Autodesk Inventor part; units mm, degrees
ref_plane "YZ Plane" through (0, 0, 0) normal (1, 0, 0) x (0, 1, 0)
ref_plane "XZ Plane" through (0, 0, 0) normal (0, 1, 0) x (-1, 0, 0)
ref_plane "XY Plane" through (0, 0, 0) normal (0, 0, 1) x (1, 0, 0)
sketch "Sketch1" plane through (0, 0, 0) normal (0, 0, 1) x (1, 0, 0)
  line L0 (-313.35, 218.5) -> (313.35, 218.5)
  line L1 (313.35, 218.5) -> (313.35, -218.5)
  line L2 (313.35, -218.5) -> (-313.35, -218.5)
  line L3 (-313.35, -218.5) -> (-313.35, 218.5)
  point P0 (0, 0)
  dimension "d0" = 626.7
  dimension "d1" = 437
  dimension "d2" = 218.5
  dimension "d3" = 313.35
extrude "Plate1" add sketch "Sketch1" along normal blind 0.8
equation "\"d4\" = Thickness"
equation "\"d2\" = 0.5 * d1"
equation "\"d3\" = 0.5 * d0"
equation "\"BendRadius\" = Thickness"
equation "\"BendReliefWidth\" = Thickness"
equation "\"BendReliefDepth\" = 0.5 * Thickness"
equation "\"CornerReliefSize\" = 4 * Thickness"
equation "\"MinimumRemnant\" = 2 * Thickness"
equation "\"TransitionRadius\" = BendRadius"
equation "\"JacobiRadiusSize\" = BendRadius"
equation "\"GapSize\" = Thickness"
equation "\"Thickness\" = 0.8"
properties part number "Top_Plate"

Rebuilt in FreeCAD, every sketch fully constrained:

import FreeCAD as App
import Part
import Sketcher

V = App.Vector
Q = App.Units.Quantity


def add_polygon(sketch, points):
    """Adds a closed chain of lines whose ends are joined by coincident constraints."""
    first, n = sketch.GeometryCount, len(points)
    for a, b in zip(points, points[1:] + points[:1]):
        sketch.addGeometry(Part.LineSegment(App.Vector(*a, 0), App.Vector(*b, 0)), False)
    for i in range(n):
        sketch.addConstraint(Sketcher.Constraint("Coincident", first + i, 2, first + (i + 1) % n, 1))

doc = App.newDocument("Part")
body = doc.addObject("PartDesign::Body", "Body")

# Sketch on XY plane
sketch1 = body.newObject("Sketcher::SketchObject", "Sketch")
sketch1.AttachmentSupport = (doc.getObject("XY_Plane"), [""])
sketch1.MapMode = "FlatFace"
add_polygon(sketch1, [(313, 218), (-313, 218), (-313, -218), (313, -218)])  # lines 0-3
sketch1.addConstraint([
    Sketcher.Constraint("Horizontal", 0),
    Sketcher.Constraint("Vertical", 1),
    Sketcher.Constraint("Horizontal", 2),
    Sketcher.Constraint("Vertical", 3),
    Sketcher.Constraint("Symmetric", 0, 2, 2, 2, -1, 1),
    Sketcher.Constraint("DistanceY", 1, 2, 1, 1, Q("437 mm")),
    Sketcher.Constraint("DistanceX", 0, 2, 0, 1, Q("626.7 mm")),
])
pad1 = body.newObject("PartDesign::Pad", "Pad")
pad1.Profile = sketch1
pad1.Length = 0.8

doc.recompute()
